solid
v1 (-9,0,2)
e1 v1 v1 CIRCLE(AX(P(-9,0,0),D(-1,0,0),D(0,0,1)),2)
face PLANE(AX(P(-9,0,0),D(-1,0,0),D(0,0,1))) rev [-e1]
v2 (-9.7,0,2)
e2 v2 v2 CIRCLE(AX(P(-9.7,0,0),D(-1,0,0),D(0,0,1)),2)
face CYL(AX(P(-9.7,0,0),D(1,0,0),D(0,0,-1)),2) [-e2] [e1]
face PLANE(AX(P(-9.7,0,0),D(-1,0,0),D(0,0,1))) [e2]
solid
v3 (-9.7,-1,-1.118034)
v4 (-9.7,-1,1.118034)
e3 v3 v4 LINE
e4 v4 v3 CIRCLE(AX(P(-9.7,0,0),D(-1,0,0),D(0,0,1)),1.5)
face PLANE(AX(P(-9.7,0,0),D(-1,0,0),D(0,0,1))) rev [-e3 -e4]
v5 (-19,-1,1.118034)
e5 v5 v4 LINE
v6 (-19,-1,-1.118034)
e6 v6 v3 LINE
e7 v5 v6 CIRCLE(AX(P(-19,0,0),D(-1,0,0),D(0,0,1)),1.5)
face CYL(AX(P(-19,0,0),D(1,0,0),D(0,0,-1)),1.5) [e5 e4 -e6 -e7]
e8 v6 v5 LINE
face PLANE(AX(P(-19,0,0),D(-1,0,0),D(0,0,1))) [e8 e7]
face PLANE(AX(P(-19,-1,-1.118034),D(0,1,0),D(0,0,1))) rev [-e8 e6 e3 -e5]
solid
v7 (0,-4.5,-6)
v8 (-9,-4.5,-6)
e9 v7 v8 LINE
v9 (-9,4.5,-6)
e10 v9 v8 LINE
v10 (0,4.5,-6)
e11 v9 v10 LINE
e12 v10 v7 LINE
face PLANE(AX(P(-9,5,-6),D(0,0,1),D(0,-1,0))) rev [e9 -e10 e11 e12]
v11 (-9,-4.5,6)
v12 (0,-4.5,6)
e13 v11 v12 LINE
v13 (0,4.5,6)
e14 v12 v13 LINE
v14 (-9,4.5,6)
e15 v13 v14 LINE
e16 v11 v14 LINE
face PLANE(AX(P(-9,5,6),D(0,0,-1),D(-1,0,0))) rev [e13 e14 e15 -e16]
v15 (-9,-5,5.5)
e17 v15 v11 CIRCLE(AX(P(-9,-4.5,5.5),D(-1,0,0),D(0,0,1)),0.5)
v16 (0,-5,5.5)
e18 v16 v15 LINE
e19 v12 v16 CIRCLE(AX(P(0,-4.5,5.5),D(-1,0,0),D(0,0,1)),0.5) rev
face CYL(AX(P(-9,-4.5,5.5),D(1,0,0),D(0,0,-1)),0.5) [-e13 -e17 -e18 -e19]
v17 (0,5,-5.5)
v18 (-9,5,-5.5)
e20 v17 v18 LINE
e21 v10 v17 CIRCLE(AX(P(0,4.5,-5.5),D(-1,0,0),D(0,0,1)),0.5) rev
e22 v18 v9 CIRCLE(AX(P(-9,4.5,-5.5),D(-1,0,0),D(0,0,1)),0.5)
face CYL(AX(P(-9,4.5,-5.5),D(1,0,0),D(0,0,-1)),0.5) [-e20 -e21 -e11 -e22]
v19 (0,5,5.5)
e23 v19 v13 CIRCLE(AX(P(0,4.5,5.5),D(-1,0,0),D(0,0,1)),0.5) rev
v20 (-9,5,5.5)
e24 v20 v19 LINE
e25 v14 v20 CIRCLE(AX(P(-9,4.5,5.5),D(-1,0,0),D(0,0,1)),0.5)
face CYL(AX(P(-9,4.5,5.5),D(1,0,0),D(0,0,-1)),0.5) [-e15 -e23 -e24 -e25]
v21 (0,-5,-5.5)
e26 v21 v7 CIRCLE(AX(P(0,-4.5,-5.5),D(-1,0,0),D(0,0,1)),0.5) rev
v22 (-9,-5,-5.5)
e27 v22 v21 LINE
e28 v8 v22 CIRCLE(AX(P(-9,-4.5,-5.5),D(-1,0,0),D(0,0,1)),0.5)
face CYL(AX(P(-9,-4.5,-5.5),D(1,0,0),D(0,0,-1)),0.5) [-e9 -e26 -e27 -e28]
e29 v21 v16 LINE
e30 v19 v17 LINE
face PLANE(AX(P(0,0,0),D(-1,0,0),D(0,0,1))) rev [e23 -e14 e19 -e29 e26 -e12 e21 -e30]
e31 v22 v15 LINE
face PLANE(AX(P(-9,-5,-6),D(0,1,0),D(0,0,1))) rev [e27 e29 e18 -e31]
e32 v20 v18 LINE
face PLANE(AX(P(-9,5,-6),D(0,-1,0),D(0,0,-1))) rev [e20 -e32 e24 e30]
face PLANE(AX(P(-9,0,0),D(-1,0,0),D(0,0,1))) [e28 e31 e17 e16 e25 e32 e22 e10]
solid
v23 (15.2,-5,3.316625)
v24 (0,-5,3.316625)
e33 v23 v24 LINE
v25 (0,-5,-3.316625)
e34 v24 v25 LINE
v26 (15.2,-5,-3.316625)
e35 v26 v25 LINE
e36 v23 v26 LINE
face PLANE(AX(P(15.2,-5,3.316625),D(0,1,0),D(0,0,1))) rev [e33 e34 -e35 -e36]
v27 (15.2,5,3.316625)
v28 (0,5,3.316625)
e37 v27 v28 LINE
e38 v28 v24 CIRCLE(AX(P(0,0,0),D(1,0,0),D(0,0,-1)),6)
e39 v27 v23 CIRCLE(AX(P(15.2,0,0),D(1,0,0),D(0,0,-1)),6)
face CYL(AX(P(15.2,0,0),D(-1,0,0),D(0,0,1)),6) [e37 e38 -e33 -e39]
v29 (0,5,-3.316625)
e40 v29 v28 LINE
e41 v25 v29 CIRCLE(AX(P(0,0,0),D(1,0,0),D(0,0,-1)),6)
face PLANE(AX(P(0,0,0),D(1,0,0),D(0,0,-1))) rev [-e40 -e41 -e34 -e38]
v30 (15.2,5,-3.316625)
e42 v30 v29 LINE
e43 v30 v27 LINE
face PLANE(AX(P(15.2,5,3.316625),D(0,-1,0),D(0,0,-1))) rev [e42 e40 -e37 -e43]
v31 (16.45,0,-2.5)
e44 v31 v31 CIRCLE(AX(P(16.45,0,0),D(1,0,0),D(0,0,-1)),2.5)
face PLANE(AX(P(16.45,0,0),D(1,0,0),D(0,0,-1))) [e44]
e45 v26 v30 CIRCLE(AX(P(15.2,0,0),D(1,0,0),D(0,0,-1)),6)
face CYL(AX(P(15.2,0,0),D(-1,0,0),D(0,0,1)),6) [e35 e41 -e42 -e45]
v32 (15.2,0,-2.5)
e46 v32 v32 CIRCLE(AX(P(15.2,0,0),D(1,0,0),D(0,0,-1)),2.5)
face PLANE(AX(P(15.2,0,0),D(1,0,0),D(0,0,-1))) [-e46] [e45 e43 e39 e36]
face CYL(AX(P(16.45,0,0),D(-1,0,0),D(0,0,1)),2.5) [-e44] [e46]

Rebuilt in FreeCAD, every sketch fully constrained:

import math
import FreeCAD as App
import Part
import Sketcher
from FreeCAD import Vector


def edges_at(feature, points):
    """Names of the edges that pass closest to the given points."""
    edges = feature.Shape.Edges
    near = lambda p: min(range(len(edges)), key=lambda i: edges[i].distToShape(Part.Vertex(*p))[0])
    return sorted({f"Edge{near(p) + 1}" for p in points})


def add_polygon(sketch, points):
    """Adds a closed chain of lines whose ends are joined by coincident constraints."""
    first, n = sketch.GeometryCount, len(points)
    for a, b in zip(points, points[1:] + points[:1]):
        sketch.addGeometry(Part.LineSegment(App.Vector(*a, 0), App.Vector(*b, 0)), False)
    for i in range(n):
        sketch.addConstraint(Sketcher.Constraint("Coincident", first + i, 2, first + (i + 1) % n, 1))

doc = App.newDocument("Part")
params = doc.addObject("Spreadsheet::Sheet", "Params")
for row, (alias, value) in enumerate([
    ("sketch1_radius", "6 mm"),
    ("pad1_length", "15.2 mm"),
    ("sketch2_diameter", "5 mm"),
    ("pad2_length", "1.25 mm"),
    ("sketch3_width", "10 mm"),
    ("sketch3_height", "12 mm"),
    ("pad3_length", "9 mm"),
    ("fillet_radius", "0.5 mm"),
    ("sketch4_diameter", "4 mm"),
    ("pad4_length", "0.7 mm"),
    ("sketch5_radius", "1.5 mm"),
    ("pad5_length", "9.3 mm"),
], start=1):
    params.set(f"A{row}", alias)
    params.set(f"B{row}", "=" + value)
    params.setAlias(f"B{row}", alias)

body = doc.addObject("PartDesign::Body", "Body")

# Sketch on YZ plane
sketch1 = body.newObject("Sketcher::SketchObject", "Sketch")
sketch1.AttachmentSupport = (doc.getObject("YZ_Plane"), [""])
sketch1.MapMode = "FlatFace"
sketch1.addGeometry([
    Part.LineSegment(Vector(5, -3, 0), Vector(5, 3, 0)),
    Part.ArcOfCircle(Part.Circle(Vector(0, 0, 0), Vector(0, 0, 1), 6), math.radians(34), math.radians(146)),
    Part.LineSegment(Vector(-5, 3, 0), Vector(-5, -3, 0)),
    Part.ArcOfCircle(Part.Circle(Vector(0, 0, 0), Vector(0, 0, 1), 6), math.radians(-146), math.radians(-34)),
], False)
sketch1.addConstraint([
    Sketcher.Constraint("Coincident", 0, 2, 1, 1),
    Sketcher.Constraint("Coincident", 1, 2, 2, 1),
    Sketcher.Constraint("Coincident", 2, 2, 3, 1),
    Sketcher.Constraint("Coincident", 3, 2, 0, 1),
    Sketcher.Constraint("Vertical", 0),
    Sketcher.Constraint("Vertical", 2),
    Sketcher.Constraint("Coincident", 1, 3, -1, 1),
    Sketcher.Constraint("Coincident", 3, 3, -1, 1),
    Sketcher.Constraint("Equal", 1, 3),
    Sketcher.Constraint("Horizontal", 0, 2, 1, 2),
    Sketcher.Constraint("Radius", 1, 6.0),
    Sketcher.Constraint("DistanceX", -1, 1, 0, 2, 5.0),
])
sketch1.setExpression("Constraints[10]", "Params.sketch1_radius")
pad1 = body.newObject("PartDesign::Pad", "Pad")
pad1.Profile = sketch1
pad1.setExpression("Length", "Params.pad1_length")

# Sketch on YZ plane
sketch2 = body.newObject("Sketcher::SketchObject", "Sketch001")
sketch2.AttachmentSupport = (doc.getObject("YZ_Plane"), [""])
sketch2.MapMode = "FlatFace"
sketch2.AttachmentOffset = App.Placement(Vector(0, 0, 15.2), App.Rotation())
sketch2.addGeometry(Part.Circle(Vector(0, 0, 0), Vector(0, 0, 1), 2.5), False)
sketch2.addConstraint([
    Sketcher.Constraint("Coincident", 0, 3, -1, 1),
    Sketcher.Constraint("Diameter", 0, 5.0),
])
sketch2.setExpression("Constraints[1]", "Params.sketch2_diameter")
pad2 = body.newObject("PartDesign::Pad", "Pad001")
pad2.Profile = sketch2
pad2.setExpression("Length", "Params.pad2_length")
body2 = doc.addObject("PartDesign::Body", "Body001")

# Sketch on YZ plane
sketch3 = body2.newObject("Sketcher::SketchObject", "Sketch002")
sketch3.AttachmentSupport = (doc.getObject("YZ_Plane001"), [""])
sketch3.MapMode = "FlatFace"
add_polygon(sketch3, [(5, -6), (-5, -6), (-5, 6), (5, 6)])  # lines 0-3
sketch3.addConstraint([
    Sketcher.Constraint("Horizontal", 0),
    Sketcher.Constraint("Vertical", 1),
    Sketcher.Constraint("Horizontal", 2),
    Sketcher.Constraint("Vertical", 3),
    Sketcher.Constraint("Symmetric", 0, 2, 2, 2, -1, 1),
    Sketcher.Constraint("DistanceX", 0, 2, 0, 1, 10.0),
    Sketcher.Constraint("DistanceY", 1, 1, 1, 2, 12.0),
])
sketch3.setExpression("Constraints[9]", "Params.sketch3_width")
sketch3.setExpression("Constraints[10]", "Params.sketch3_height")
pad3 = body2.newObject("PartDesign::Pad", "Pad002")
pad3.Profile = sketch3
pad3.setExpression("Length", "Params.pad3_length")
pad3.Reversed = True
doc.recompute()

fillet = body2.newObject("PartDesign::Fillet", "Fillet")
fillet.Base = (pad3, edges_at(pad3, [
    (-4.5, -5, 6),
    (-4.5, -5, -6),
    (-4.5, 5, -6),
    (-4.5, 5, 6),
]))
fillet.setExpression("Radius", "Params.fillet_radius")
body3 = doc.addObject("PartDesign::Body", "Body002")

# Sketch on YZ plane
sketch4 = body3.newObject("Sketcher::SketchObject", "Sketch003")
sketch4.AttachmentSupport = (doc.getObject("YZ_Plane002"), [""])
sketch4.MapMode = "FlatFace"
sketch4.AttachmentOffset = App.Placement(Vector(0, 0, -9), App.Rotation())
sketch4.addGeometry(Part.Circle(Vector(0, 0, 0), Vector(0, 0, 1), 2), False)
sketch4.addConstraint([
    Sketcher.Constraint("Coincident", 0, 3, -1, 1),
    Sketcher.Constraint("Diameter", 0, 4.0),
])
sketch4.setExpression("Constraints[1]", "Params.sketch4_diameter")
pad4 = body3.newObject("PartDesign::Pad", "Pad003")
pad4.Profile = sketch4
pad4.setExpression("Length", "Params.pad4_length")
pad4.Reversed = True
body4 = doc.addObject("PartDesign::Body", "Body003")

# Sketch on YZ plane
sketch5 = body4.newObject("Sketcher::SketchObject", "Sketch004")
sketch5.AttachmentSupport = (doc.getObject("YZ_Plane003"), [""])
sketch5.MapMode = "FlatFace"
sketch5.AttachmentOffset = App.Placement(Vector(0, 0, -9.7), App.Rotation())
sketch5.addGeometry([
    Part.LineSegment(Vector(-1, -1.1, 0), Vector(-1, 1.1, 0)),
    Part.ArcOfCircle(Part.Circle(Vector(0, 0, 0), Vector(0, 0, 1), 1.5), math.radians(-132), math.radians(132)),
], False)
sketch5.addConstraint([
    Sketcher.Constraint("Coincident", 0, 1, 1, 1),
    Sketcher.Constraint("Coincident", 1, 2, 0, 2),
    Sketcher.Constraint("Vertical", 0),
    Sketcher.Constraint("Coincident", 1, 3, -1, 1),
    Sketcher.Constraint("Radius", 1, 1.5),
    Sketcher.Constraint("DistanceX", 0, 1, -1, 1, 1.0),
])
sketch5.setExpression("Constraints[4]", "Params.sketch5_radius")
pad5 = body4.newObject("PartDesign::Pad", "Pad004")
pad5.Profile = sketch5
pad5.setExpression("Length", "Params.pad5_length")
pad5.Reversed = True

doc.recompute()
